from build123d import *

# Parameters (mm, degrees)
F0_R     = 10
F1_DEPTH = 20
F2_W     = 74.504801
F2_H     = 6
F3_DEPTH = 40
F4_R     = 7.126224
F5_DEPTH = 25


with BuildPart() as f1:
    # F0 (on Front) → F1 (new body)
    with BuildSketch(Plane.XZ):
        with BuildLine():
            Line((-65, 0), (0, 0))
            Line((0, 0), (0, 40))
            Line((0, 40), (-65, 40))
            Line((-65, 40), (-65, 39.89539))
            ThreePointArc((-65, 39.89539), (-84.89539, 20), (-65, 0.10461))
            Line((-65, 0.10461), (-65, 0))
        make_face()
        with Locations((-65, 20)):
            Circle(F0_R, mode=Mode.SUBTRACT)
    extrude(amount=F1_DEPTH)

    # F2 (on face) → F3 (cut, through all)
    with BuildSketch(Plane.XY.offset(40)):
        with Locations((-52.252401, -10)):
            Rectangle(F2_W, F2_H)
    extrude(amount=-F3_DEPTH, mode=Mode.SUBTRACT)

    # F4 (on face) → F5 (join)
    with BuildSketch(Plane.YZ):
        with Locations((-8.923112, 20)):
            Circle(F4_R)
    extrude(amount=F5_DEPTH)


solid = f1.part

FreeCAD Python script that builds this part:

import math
import FreeCAD as App
import Part
import Sketcher

V = App.Vector


def add_polygon(sketch, points):
    """Adds a closed chain of lines whose ends are joined by coincident constraints."""
    first, n = sketch.GeometryCount, len(points)
    for a, b in zip(points, points[1:] + points[:1]):
        sketch.addGeometry(Part.LineSegment(App.Vector(*a, 0), App.Vector(*b, 0)), False)
    for i in range(n):
        sketch.addConstraint(Sketcher.Constraint("Coincident", first + i, 2, first + (i + 1) % n, 1))

doc = App.newDocument("Part")
body = doc.addObject("PartDesign::Body", "Body")

# Sketch on XZ plane
sketch1 = doc.addObject("Sketcher::SketchObject", "Sketch")
body.addObject(sketch1)
sketch1.AttachmentSupport = (doc.XZ_Plane, [""])
sketch1.MapMode = "FlatFace"
sketch1.addGeometry([
    Part.LineSegment(V(-65, 0, 0), V(0, 0, 0)),  # 0
    Part.LineSegment(V(0, 0, 0), V(0, 40, 0)),  # 1
    Part.LineSegment(V(0, 40, 0), V(-65, 40, 0)),  # 2
    Part.LineSegment(V(-65, 40, 0), V(-65, 39.9, 0)),  # 3
    Part.ArcOfCircle(Part.Circle(V(-65, 20, 0), V(0, 0, 1), 19.9), math.radians(90), math.radians(270)),  # 4
    Part.LineSegment(V(-65, 0.1, 0), V(-65, 0, 0)),  # 5
    Part.Circle(V(-65, 20, 0), V(0, 0, 1), 10),  # 6
], False)
sketch1.addConstraint([
    Sketcher.Constraint("Coincident", 0, 2, 1, 1),
    Sketcher.Constraint("Coincident", 1, 2, 2, 1),
    Sketcher.Constraint("Coincident", 2, 2, 3, 1),
    Sketcher.Constraint("Coincident", 3, 2, 4, 1),
    Sketcher.Constraint("Coincident", 4, 2, 5, 1),
    Sketcher.Constraint("Coincident", 5, 2, 0, 1),
    Sketcher.Constraint("Horizontal", 0),
    Sketcher.Constraint("Vertical", 1),
    Sketcher.Constraint("Horizontal", 2),
    Sketcher.Constraint("Vertical", 3),
    Sketcher.Constraint("Vertical", 5),
    Sketcher.Constraint("Coincident", 0, 2, -1, 1),
    Sketcher.Constraint("Coincident", 6, 3, 4, 3),
    Sketcher.Constraint("Vertical", 6, 3, 2, 2),
    Sketcher.Constraint("Vertical", 3, 2, 4, 2),
    Sketcher.Constraint("Equal", 3, 5),
    Sketcher.Constraint("Diameter", 6, 20.0),
    Sketcher.Constraint("DistanceX", 0, 1, 0, 2, 65.0),
    Sketcher.Constraint("DistanceY", 1, 1, 1, 2, 40.0),
    Sketcher.Constraint("Radius", 4, 19.89539),
])
pad1 = doc.addObject("PartDesign::Pad", "Pad")
body.addObject(pad1)
pad1.Profile = sketch1
pad1.Length = 20

# Sketch on XY plane
sketch2 = doc.addObject("Sketcher::SketchObject", "Sketch001")
body.addObject(sketch2)
sketch2.AttachmentSupport = (doc.XY_Plane, [""])
sketch2.MapMode = "FlatFace"
sketch2.AttachmentOffset = App.Placement(V(0, 0, 40), App.Rotation())
add_polygon(sketch2, [(-90, -7), (-90, -13), (-15, -13), (-15, -7)])  # lines 0-3
sketch2.addConstraint([
    Sketcher.Constraint("Vertical", 0),
    Sketcher.Constraint("Horizontal", 1),
    Sketcher.Constraint("Vertical", 2),
    Sketcher.Constraint("Horizontal", 3),
    Sketcher.Constraint("DistanceY", 0, 2, 0, 1, 6.0),
    Sketcher.Constraint("DistanceY", 0, 2, -1, 1, 13.0),
    Sketcher.Constraint("DistanceX", 1, 2, -1, 1, 15.000001),
    Sketcher.Constraint("DistanceX", 1, 1, 1, 2, 74.504801),
])
pocket1 = doc.addObject("PartDesign::Pocket", "Pocket")
body.addObject(pocket1)
pocket1.Profile = sketch2
pocket1.Type = "ThroughAll"

# Sketch on YZ plane
sketch3 = doc.addObject("Sketcher::SketchObject", "Sketch002")
body.addObject(sketch3)
sketch3.AttachmentSupport = (doc.YZ_Plane, [""])
sketch3.MapMode = "FlatFace"
sketch3.addGeometry(Part.Circle(V(-9, 20, 0), V(0, 0, 1), 7), False)
sketch3.addConstraint([
    Sketcher.Constraint("DistanceY", -1, 1, 0, 3, 20.0),
    Sketcher.Constraint("Diameter", 0, 14.252448),
    Sketcher.Constraint("DistanceX", 0, 3, -1, 1, 8.923112),
])
pad2 = doc.addObject("PartDesign::Pad", "Pad001")
body.addObject(pad2)
pad2.Profile = sketch3
pad2.Length = 25

doc.recompute()
